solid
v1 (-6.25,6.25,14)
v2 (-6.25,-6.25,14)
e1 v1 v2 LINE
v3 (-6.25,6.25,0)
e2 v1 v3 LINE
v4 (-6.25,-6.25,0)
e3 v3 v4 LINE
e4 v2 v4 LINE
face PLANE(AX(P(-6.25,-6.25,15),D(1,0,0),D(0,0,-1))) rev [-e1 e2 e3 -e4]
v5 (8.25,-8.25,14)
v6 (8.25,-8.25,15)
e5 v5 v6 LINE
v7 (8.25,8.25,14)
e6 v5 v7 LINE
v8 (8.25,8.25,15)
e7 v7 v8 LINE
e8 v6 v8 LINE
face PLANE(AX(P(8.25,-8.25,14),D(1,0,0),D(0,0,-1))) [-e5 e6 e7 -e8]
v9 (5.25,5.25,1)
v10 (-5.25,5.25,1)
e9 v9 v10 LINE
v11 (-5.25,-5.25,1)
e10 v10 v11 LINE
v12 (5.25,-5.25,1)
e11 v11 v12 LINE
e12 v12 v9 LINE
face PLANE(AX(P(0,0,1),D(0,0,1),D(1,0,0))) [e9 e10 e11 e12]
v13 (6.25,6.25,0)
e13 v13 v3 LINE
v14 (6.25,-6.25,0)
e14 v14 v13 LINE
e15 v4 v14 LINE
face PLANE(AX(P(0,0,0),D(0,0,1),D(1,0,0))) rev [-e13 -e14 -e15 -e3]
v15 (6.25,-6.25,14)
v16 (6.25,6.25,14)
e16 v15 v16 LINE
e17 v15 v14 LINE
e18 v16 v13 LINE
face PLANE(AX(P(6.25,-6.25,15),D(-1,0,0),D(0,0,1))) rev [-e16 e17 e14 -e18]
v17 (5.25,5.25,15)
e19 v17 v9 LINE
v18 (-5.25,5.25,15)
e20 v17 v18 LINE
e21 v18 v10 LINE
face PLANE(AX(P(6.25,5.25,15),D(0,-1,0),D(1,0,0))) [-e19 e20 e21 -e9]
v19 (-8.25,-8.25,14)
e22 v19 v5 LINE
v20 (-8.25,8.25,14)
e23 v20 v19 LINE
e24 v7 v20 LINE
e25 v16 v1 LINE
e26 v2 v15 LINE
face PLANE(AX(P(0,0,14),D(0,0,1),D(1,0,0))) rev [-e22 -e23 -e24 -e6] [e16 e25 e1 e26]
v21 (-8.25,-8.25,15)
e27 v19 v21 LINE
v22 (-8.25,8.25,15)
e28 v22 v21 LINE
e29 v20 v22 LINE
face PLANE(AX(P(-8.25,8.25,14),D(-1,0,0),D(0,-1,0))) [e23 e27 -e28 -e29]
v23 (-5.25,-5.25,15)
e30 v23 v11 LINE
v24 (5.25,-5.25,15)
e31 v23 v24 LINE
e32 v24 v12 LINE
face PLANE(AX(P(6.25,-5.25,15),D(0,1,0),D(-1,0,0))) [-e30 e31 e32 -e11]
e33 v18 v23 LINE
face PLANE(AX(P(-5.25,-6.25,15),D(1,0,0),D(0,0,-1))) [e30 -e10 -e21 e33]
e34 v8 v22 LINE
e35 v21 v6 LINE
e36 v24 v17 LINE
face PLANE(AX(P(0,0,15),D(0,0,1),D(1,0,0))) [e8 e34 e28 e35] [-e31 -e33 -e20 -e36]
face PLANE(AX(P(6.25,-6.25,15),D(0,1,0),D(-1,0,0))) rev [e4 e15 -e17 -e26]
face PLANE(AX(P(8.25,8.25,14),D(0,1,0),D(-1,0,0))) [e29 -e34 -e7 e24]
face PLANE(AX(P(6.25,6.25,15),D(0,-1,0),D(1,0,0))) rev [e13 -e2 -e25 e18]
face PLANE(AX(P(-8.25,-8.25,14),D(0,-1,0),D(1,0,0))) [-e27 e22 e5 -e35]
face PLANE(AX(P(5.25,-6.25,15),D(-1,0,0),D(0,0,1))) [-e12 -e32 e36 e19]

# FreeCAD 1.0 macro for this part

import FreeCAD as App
import Part
import Sketcher
Q = App.Units.Quantity


def faces_at(feature, points):
    """Names of the faces that lie closest to the given points."""
    faces = feature.Shape.Faces
    near = lambda p: min(range(len(faces)), key=lambda i: faces[i].distToShape(Part.Vertex(*p))[0])
    return sorted({f"Face{near(p) + 1}" for p in points})


def add_polygon(sketch, points):
    """Adds a closed chain of lines whose ends are joined by coincident constraints."""
    first, n = sketch.GeometryCount, len(points)
    for a, b in zip(points, points[1:] + points[:1]):
        sketch.addGeometry(Part.LineSegment(App.Vector(*a, 0), App.Vector(*b, 0)), False)
    for i in range(n):
        sketch.addConstraint(Sketcher.Constraint("Coincident", first + i, 2, first + (i + 1) % n, 1))

doc = App.newDocument("Part")
body = doc.addObject("PartDesign::Body", "Body")

sketch1 = body.newObject("Sketcher::SketchObject", "Sketch")
sketch1.AttachmentSupport = (doc.getObject("XY_Plane"), [""])
sketch1.MapMode = "FlatFace"
add_polygon(sketch1, [(-6, 6), (-6, -6), (6, -6), (6, 6)])
sketch1.addConstraint([
    Sketcher.Constraint("Vertical", 0),
    Sketcher.Constraint("Horizontal", 1),
    Sketcher.Constraint("Vertical", 2),
    Sketcher.Constraint("Horizontal", 3),
    Sketcher.Constraint("Symmetric", 0, 2, 2, 2, -1, 1),
    Sketcher.Constraint("Equal", 3, 0),
    Sketcher.Constraint("DistanceX", 1, 1, 1, 2, Q("12.5 mm")),
])
pad1 = body.newObject("PartDesign::Pad", "Pad")
pad1.Profile = sketch1
pad1.Length = 15
doc.recompute()

thickness = body.newObject("PartDesign::Thickness", "Thickness")
thickness.Base = (pad1, faces_at(pad1, [(0, 0, 15)]))
thickness.Value = 1
thickness.Reversed = True
thickness.Join = "Intersection"

sketch2 = body.newObject("Sketcher::SketchObject", "Sketch001")
sketch2.AttachmentSupport = (doc.getObject("XY_Plane"), [""])
sketch2.MapMode = "FlatFace"
sketch2.AttachmentOffset = App.Placement(App.Vector(0, 0, 15), App.Rotation())
add_polygon(sketch2, [(-8, 8), (-8, -8), (8, -8), (8, 8)])
add_polygon(sketch2, [(6, -6), (-6, -6), (-6, 6), (6, 6)])
sketch2.addConstraint([
    Sketcher.Constraint("Vertical", 0),
    Sketcher.Constraint("Horizontal", 1),
    Sketcher.Constraint("Vertical", 2),
    Sketcher.Constraint("Horizontal", 3),
    Sketcher.Constraint("Horizontal", 4),
    Sketcher.Constraint("Vertical", 5),
    Sketcher.Constraint("Horizontal", 6),
    Sketcher.Constraint("Vertical", 7),
    Sketcher.Constraint("Symmetric", 0, 2, 2, 2, -1, 1),
    Sketcher.Constraint("Symmetric", 4, 2, 6, 2, -1, 1),
    Sketcher.Constraint("Equal", 3, 0),
    Sketcher.Constraint("Equal", 6, 5),
    Sketcher.Constraint("DistanceX", 1, 1, 1, 2, Q("16.5 mm")),
    Sketcher.Constraint("DistanceX", 4, 2, 4, 1, Q("12.5 mm")),
])
pad2 = body.newObject("PartDesign::Pad", "Pad001")
pad2.Profile = sketch2
pad2.Length = 1
pad2.Reversed = True

doc.recompute()
